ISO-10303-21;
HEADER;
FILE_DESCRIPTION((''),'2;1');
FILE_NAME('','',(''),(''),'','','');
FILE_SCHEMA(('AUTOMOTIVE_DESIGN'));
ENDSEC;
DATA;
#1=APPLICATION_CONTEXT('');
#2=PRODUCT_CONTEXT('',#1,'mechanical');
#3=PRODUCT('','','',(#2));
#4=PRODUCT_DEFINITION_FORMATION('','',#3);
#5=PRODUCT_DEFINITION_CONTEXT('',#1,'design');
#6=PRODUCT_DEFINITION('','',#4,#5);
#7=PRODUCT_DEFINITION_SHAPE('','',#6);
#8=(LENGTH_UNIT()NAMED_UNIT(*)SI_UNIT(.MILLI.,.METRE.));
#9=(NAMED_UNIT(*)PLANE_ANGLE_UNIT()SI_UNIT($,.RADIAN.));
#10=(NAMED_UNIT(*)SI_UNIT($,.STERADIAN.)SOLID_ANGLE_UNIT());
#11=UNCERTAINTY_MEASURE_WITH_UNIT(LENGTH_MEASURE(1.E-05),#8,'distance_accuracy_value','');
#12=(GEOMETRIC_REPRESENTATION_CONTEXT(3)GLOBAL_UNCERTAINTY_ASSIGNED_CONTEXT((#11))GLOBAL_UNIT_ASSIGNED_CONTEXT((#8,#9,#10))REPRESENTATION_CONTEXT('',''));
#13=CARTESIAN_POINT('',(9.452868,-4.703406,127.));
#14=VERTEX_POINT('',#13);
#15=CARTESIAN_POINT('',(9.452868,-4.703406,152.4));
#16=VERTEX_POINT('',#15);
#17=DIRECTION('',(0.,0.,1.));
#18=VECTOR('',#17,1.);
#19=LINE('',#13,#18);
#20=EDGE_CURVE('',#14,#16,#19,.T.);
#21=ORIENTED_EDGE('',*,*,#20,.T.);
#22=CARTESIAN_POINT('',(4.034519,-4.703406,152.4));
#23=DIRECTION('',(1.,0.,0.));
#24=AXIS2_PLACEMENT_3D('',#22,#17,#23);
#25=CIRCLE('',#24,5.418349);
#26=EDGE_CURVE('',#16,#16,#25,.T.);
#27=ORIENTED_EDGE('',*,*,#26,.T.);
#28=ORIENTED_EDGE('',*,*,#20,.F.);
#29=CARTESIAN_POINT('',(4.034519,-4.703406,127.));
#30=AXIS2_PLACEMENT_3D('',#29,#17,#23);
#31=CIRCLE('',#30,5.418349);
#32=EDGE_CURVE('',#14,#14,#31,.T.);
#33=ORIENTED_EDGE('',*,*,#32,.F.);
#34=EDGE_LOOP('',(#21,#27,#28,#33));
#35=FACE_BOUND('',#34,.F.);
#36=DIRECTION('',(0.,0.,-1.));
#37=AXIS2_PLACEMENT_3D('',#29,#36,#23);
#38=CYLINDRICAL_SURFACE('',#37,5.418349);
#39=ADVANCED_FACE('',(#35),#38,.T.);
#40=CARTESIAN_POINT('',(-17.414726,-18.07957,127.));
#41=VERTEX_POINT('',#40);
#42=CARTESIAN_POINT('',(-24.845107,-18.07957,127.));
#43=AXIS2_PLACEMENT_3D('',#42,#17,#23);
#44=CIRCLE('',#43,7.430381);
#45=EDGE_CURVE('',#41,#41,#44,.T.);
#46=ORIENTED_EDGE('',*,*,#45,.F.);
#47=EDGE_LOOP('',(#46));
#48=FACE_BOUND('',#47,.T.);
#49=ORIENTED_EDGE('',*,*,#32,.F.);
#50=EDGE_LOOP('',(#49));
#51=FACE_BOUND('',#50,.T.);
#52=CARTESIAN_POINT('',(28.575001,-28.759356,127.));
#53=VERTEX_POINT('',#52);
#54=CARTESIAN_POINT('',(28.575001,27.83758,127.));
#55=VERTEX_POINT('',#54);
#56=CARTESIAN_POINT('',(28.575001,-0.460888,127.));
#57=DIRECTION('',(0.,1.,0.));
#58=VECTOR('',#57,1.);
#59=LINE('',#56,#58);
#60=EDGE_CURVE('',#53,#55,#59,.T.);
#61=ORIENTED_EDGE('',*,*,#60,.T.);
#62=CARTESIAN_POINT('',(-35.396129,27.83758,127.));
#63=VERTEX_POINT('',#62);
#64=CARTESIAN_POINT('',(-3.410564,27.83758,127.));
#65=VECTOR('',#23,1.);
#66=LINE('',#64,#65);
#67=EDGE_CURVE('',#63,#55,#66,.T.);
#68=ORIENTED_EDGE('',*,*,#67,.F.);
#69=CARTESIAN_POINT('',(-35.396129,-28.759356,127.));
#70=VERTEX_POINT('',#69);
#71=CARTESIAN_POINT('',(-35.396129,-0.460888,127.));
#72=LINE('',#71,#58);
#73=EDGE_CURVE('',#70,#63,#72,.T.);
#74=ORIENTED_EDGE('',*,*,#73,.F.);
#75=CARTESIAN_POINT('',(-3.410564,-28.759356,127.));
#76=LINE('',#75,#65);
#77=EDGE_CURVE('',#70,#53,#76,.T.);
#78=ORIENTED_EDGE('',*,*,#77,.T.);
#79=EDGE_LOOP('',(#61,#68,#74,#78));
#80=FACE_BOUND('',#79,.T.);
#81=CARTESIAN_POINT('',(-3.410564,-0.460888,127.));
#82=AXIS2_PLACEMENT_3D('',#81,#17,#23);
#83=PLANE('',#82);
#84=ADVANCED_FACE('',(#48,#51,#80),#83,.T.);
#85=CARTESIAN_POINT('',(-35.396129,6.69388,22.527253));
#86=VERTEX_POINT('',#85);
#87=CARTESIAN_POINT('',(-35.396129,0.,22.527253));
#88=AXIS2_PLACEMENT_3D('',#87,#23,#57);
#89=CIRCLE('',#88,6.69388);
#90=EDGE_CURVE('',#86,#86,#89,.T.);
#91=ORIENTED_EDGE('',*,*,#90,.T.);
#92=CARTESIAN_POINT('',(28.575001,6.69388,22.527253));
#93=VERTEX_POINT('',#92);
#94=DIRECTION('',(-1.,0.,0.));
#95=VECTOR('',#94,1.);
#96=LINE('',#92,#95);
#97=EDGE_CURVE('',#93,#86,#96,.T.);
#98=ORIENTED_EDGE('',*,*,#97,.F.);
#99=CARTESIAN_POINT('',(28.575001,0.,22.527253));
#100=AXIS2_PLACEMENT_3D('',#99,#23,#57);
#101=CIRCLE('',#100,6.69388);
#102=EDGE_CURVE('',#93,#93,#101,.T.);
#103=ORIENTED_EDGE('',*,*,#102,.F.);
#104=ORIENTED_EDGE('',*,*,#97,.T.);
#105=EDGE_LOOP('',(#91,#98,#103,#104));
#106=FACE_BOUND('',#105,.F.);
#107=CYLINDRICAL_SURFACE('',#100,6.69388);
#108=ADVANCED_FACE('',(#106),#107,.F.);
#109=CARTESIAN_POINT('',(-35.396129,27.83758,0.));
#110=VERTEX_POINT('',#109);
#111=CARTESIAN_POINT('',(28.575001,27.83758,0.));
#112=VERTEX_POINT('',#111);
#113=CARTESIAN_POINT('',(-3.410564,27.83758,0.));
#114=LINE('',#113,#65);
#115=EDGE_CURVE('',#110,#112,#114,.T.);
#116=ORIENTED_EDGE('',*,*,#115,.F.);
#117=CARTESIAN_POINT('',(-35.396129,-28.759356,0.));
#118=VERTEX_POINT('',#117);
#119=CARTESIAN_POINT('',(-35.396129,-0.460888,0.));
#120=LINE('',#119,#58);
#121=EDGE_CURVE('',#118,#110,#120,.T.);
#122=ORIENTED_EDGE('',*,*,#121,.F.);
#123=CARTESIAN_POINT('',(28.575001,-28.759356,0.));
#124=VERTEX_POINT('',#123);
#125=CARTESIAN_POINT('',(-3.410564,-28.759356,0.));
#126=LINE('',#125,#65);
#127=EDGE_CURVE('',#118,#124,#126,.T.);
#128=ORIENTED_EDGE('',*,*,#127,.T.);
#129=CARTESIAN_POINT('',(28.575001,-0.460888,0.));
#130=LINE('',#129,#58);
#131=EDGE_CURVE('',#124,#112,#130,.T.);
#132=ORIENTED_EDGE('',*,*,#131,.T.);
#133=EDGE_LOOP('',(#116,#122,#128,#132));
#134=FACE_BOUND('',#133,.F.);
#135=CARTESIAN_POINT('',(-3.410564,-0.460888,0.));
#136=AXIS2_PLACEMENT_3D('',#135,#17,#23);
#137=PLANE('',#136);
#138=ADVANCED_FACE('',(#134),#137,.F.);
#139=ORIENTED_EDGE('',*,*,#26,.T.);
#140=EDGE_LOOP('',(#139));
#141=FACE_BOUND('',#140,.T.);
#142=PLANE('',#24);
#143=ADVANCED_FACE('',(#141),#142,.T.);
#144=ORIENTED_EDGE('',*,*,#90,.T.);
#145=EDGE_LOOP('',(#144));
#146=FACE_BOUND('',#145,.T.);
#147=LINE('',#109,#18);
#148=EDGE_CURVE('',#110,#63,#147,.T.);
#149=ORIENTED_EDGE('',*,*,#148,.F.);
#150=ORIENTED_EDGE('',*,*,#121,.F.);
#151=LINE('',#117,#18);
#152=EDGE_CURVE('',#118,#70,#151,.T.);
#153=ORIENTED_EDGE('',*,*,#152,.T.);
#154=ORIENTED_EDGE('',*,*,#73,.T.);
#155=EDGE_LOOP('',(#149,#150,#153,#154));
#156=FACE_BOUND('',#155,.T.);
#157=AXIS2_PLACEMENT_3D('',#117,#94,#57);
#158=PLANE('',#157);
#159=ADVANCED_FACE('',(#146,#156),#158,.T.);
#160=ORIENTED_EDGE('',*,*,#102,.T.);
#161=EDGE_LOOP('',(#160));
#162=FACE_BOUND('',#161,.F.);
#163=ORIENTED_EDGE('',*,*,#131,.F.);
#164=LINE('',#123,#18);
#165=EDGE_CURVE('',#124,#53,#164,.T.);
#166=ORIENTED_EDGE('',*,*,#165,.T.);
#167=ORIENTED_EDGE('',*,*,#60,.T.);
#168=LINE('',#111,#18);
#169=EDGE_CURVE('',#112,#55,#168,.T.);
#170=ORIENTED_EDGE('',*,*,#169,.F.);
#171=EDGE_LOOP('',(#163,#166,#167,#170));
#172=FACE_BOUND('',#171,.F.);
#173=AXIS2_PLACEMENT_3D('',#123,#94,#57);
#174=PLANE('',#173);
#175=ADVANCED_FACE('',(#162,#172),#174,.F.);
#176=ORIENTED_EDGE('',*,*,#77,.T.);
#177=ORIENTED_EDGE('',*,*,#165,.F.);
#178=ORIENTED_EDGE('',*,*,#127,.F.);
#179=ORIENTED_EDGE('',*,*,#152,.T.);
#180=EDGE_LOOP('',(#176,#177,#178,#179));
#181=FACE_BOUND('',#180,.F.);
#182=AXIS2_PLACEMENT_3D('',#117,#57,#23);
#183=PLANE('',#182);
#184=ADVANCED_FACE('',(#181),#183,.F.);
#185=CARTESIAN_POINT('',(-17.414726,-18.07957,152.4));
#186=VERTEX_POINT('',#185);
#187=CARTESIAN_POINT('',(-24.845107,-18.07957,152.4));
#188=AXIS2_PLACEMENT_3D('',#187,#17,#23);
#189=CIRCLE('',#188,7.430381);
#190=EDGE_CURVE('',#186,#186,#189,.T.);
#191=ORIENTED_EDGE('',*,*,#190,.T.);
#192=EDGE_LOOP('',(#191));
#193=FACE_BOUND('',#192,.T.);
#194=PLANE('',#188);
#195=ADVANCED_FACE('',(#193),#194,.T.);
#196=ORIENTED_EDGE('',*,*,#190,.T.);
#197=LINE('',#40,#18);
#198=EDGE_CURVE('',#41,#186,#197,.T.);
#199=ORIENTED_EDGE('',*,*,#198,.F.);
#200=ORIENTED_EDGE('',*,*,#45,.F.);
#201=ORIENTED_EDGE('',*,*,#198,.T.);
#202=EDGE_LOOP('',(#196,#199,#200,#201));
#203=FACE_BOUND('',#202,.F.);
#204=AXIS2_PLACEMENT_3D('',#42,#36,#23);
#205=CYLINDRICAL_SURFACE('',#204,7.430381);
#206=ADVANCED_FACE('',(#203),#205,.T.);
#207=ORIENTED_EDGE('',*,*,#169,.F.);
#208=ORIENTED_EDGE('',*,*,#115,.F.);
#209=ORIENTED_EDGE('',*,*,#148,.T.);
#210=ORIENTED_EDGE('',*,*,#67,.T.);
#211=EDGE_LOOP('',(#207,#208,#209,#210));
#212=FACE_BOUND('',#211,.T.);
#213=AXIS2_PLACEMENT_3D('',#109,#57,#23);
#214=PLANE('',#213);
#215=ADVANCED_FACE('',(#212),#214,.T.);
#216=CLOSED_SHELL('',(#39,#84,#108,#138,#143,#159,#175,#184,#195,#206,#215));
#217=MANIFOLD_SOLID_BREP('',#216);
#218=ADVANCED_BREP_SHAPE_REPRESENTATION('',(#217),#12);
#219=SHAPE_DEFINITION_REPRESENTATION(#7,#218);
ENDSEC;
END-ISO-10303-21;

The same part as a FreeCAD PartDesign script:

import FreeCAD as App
import Part
import Sketcher
Q = App.Units.Quantity


def add_polygon(sketch, points):
    """Adds a closed chain of lines whose ends are joined by coincident constraints."""
    first, n = sketch.GeometryCount, len(points)
    for a, b in zip(points, points[1:] + points[:1]):
        sketch.addGeometry(Part.LineSegment(App.Vector(*a, 0), App.Vector(*b, 0)), False)
    for i in range(n):
        sketch.addConstraint(Sketcher.Constraint("Coincident", first + i, 2, first + (i + 1) % n, 1))

doc = App.newDocument("Part")
body = doc.addObject("PartDesign::Body", "Body")

# Sketch on XY plane
sketch1 = body.newObject("Sketcher::SketchObject", "Sketch")
sketch1.AttachmentSupport = (doc.getObject("XY_Plane"), [""])
sketch1.MapMode = "FlatFace"
add_polygon(sketch1, [(-35, 28), (-35, -29), (29, -29), (29, 28)])  # lines 0-3
sketch1.addConstraint(Sketcher.Constraint("Vertical", 0))
sketch1.addConstraint(Sketcher.Constraint("Horizontal", 1))
sketch1.addConstraint(Sketcher.Constraint("Vertical", 2))
sketch1.addConstraint(Sketcher.Constraint("Horizontal", 3))
sketch1.addConstraint(Sketcher.Constraint("DistanceX", -1, 1, 1, 2, Q("1.125 in")))
sketch1.addConstraint(Sketcher.Constraint("DistanceX", 1, 1, 1, 2, Q("63.97113 mm")))
sketch1.addConstraint(Sketcher.Constraint("DistanceY", 0, 2, 0, 1, Q("56.596935 mm")))
sketch1.addConstraint(Sketcher.Constraint("DistanceY", -1, 1, 2, 2, Q("27.83758 mm")))
pad1 = body.newObject("PartDesign::Pad", "Pad")
pad1.Profile = sketch1
pad1.Length = Q("5 in")

# Sketch on XY plane
sketch2 = body.newObject("Sketcher::SketchObject", "Sketch001")
sketch2.AttachmentSupport = (doc.getObject("XY_Plane"), [""])
sketch2.MapMode = "FlatFace"
sketch2.AttachmentOffset = App.Placement(App.Vector(0, 0, 5 * 25.4), App.Rotation())
sketch2.addGeometry(Part.Circle(App.Vector(4, -5, 0), App.Vector(0, 0, 1), 5), False)
sketch2.addConstraint(Sketcher.Constraint("Diameter", 0, Q("10.836698 mm")))
sketch2.addConstraint(Sketcher.Constraint("DistanceX", -1, 1, 0, 3, Q("4.034519 mm")))
sketch2.addConstraint(Sketcher.Constraint("DistanceY", 0, 3, -1, 1, Q("4.703406 mm")))
pad2 = body.newObject("PartDesign::Pad", "Pad001")
pad2.Profile = sketch2
pad2.Length = Q("1 in")

# Sketch on YZ plane
sketch3 = body.newObject("Sketcher::SketchObject", "Sketch002")
sketch3.AttachmentSupport = (doc.getObject("YZ_Plane"), [""])
sketch3.MapMode = "FlatFace"
sketch3.AttachmentOffset = App.Placement(App.Vector(0, 0, 1.125 * 25.4), App.Rotation())
sketch3.addGeometry(Part.Circle(App.Vector(0, 23, 0), App.Vector(0, 0, 1), 7), False)
sketch3.addConstraint(Sketcher.Constraint("PointOnObject", 0, 3, -2))
sketch3.addConstraint(Sketcher.Constraint("Diameter", 0, Q("13.38776 mm")))
sketch3.addConstraint(Sketcher.Constraint("DistanceY", -1, 1, 0, 3, Q("22.527253 mm")))
pocket1 = body.newObject("PartDesign::Pocket", "Pocket")
pocket1.Profile = sketch3
pocket1.Length = Q("3.35 in")

# Sketch on XY plane
sketch4 = body.newObject("Sketcher::SketchObject", "Sketch003")
sketch4.AttachmentSupport = (doc.getObject("XY_Plane"), [""])
sketch4.MapMode = "FlatFace"
sketch4.AttachmentOffset = App.Placement(App.Vector(0, 0, 5 * 25.4), App.Rotation())
sketch4.addGeometry(Part.Circle(App.Vector(-25, -18, 0), App.Vector(0, 0, 1), 7), False)
sketch4.addConstraint(Sketcher.Constraint("Diameter", 0, Q("14.860762 mm")))
sketch4.addConstraint(Sketcher.Constraint("DistanceY", 0, 3, -1, 1, Q("18.07957 mm")))
sketch4.addConstraint(Sketcher.Constraint("DistanceX", 0, 3, -1, 1, Q("24.845107 mm")))
pad3 = body.newObject("PartDesign::Pad", "Pad002")
pad3.Profile = sketch4
pad3.Length = Q("1 in")

doc.recompute()
